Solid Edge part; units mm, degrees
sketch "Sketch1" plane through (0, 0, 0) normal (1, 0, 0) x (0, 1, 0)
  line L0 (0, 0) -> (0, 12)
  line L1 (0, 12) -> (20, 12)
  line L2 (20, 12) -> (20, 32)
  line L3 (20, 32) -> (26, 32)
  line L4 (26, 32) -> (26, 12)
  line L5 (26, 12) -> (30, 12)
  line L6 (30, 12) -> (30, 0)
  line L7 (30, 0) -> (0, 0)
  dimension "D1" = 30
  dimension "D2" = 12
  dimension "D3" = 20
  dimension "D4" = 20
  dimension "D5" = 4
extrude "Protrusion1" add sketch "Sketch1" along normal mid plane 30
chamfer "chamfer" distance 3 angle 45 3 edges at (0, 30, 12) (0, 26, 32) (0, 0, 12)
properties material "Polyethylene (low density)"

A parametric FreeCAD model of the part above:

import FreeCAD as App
import Part
import Sketcher
Q = App.Units.Quantity


def edges_at(feature, points):
    """Names of the edges that pass closest to the given points."""
    edges = feature.Shape.Edges
    near = lambda p: min(range(len(edges)), key=lambda i: edges[i].distToShape(Part.Vertex(*p))[0])
    return sorted({f"Edge{near(p) + 1}" for p in points})


def add_polygon(sketch, points):
    """Adds a closed chain of lines whose ends are joined by coincident constraints."""
    first, n = sketch.GeometryCount, len(points)
    for a, b in zip(points, points[1:] + points[:1]):
        sketch.addGeometry(Part.LineSegment(App.Vector(*a, 0), App.Vector(*b, 0)), False)
    for i in range(n):
        sketch.addConstraint(Sketcher.Constraint("Coincident", first + i, 2, first + (i + 1) % n, 1))

doc = App.newDocument("Part")
body = doc.addObject("PartDesign::Body", "Body")

# Sketch on YZ plane
sketch1 = body.newObject("Sketcher::SketchObject", "Sketch")
sketch1.AttachmentSupport = (doc.getObject("YZ_Plane"), [""])
sketch1.MapMode = "FlatFace"
add_polygon(sketch1, [(0, 12), (0, 0), (30, 0), (30, 12), (26, 12), (26, 32), (20, 32), (20, 12)])  # lines 0-7
sketch1.addConstraint([
    Sketcher.Constraint("Vertical", 0),
    Sketcher.Constraint("Horizontal", 1),
    Sketcher.Constraint("Vertical", 2),
    Sketcher.Constraint("Horizontal", 3),
    Sketcher.Constraint("Vertical", 4),
    Sketcher.Constraint("Horizontal", 5),
    Sketcher.Constraint("Vertical", 6),
    Sketcher.Constraint("Horizontal", 7),
    Sketcher.Constraint("Coincident", 0, 2, -1, 1),
    Sketcher.Constraint("Horizontal", 3, 2, 6, 2),
    Sketcher.Constraint("Equal", 7, 4),
    Sketcher.Constraint("DistanceX", 1, 1, 1, 2, Q("30 mm")),
    Sketcher.Constraint("DistanceX", 7, 2, 7, 1, Q("20 mm")),
    Sketcher.Constraint("DistanceX", -1, 1, 3, 2, Q("26 mm")),
    Sketcher.Constraint("DistanceY", 0, 2, 0, 1, Q("12 mm")),
])
pad1 = body.newObject("PartDesign::Pad", "Pad")
pad1.Profile = sketch1
pad1.Length = 30
pad1.Midplane = True
doc.recompute()

chamfer = body.newObject("PartDesign::Chamfer", "Chamfer")
chamfer.Base = (pad1, edges_at(pad1, [(0, 30, 12), (0, 26, 32), (0, 0, 12)]))
chamfer.Size = 3

doc.recompute()
